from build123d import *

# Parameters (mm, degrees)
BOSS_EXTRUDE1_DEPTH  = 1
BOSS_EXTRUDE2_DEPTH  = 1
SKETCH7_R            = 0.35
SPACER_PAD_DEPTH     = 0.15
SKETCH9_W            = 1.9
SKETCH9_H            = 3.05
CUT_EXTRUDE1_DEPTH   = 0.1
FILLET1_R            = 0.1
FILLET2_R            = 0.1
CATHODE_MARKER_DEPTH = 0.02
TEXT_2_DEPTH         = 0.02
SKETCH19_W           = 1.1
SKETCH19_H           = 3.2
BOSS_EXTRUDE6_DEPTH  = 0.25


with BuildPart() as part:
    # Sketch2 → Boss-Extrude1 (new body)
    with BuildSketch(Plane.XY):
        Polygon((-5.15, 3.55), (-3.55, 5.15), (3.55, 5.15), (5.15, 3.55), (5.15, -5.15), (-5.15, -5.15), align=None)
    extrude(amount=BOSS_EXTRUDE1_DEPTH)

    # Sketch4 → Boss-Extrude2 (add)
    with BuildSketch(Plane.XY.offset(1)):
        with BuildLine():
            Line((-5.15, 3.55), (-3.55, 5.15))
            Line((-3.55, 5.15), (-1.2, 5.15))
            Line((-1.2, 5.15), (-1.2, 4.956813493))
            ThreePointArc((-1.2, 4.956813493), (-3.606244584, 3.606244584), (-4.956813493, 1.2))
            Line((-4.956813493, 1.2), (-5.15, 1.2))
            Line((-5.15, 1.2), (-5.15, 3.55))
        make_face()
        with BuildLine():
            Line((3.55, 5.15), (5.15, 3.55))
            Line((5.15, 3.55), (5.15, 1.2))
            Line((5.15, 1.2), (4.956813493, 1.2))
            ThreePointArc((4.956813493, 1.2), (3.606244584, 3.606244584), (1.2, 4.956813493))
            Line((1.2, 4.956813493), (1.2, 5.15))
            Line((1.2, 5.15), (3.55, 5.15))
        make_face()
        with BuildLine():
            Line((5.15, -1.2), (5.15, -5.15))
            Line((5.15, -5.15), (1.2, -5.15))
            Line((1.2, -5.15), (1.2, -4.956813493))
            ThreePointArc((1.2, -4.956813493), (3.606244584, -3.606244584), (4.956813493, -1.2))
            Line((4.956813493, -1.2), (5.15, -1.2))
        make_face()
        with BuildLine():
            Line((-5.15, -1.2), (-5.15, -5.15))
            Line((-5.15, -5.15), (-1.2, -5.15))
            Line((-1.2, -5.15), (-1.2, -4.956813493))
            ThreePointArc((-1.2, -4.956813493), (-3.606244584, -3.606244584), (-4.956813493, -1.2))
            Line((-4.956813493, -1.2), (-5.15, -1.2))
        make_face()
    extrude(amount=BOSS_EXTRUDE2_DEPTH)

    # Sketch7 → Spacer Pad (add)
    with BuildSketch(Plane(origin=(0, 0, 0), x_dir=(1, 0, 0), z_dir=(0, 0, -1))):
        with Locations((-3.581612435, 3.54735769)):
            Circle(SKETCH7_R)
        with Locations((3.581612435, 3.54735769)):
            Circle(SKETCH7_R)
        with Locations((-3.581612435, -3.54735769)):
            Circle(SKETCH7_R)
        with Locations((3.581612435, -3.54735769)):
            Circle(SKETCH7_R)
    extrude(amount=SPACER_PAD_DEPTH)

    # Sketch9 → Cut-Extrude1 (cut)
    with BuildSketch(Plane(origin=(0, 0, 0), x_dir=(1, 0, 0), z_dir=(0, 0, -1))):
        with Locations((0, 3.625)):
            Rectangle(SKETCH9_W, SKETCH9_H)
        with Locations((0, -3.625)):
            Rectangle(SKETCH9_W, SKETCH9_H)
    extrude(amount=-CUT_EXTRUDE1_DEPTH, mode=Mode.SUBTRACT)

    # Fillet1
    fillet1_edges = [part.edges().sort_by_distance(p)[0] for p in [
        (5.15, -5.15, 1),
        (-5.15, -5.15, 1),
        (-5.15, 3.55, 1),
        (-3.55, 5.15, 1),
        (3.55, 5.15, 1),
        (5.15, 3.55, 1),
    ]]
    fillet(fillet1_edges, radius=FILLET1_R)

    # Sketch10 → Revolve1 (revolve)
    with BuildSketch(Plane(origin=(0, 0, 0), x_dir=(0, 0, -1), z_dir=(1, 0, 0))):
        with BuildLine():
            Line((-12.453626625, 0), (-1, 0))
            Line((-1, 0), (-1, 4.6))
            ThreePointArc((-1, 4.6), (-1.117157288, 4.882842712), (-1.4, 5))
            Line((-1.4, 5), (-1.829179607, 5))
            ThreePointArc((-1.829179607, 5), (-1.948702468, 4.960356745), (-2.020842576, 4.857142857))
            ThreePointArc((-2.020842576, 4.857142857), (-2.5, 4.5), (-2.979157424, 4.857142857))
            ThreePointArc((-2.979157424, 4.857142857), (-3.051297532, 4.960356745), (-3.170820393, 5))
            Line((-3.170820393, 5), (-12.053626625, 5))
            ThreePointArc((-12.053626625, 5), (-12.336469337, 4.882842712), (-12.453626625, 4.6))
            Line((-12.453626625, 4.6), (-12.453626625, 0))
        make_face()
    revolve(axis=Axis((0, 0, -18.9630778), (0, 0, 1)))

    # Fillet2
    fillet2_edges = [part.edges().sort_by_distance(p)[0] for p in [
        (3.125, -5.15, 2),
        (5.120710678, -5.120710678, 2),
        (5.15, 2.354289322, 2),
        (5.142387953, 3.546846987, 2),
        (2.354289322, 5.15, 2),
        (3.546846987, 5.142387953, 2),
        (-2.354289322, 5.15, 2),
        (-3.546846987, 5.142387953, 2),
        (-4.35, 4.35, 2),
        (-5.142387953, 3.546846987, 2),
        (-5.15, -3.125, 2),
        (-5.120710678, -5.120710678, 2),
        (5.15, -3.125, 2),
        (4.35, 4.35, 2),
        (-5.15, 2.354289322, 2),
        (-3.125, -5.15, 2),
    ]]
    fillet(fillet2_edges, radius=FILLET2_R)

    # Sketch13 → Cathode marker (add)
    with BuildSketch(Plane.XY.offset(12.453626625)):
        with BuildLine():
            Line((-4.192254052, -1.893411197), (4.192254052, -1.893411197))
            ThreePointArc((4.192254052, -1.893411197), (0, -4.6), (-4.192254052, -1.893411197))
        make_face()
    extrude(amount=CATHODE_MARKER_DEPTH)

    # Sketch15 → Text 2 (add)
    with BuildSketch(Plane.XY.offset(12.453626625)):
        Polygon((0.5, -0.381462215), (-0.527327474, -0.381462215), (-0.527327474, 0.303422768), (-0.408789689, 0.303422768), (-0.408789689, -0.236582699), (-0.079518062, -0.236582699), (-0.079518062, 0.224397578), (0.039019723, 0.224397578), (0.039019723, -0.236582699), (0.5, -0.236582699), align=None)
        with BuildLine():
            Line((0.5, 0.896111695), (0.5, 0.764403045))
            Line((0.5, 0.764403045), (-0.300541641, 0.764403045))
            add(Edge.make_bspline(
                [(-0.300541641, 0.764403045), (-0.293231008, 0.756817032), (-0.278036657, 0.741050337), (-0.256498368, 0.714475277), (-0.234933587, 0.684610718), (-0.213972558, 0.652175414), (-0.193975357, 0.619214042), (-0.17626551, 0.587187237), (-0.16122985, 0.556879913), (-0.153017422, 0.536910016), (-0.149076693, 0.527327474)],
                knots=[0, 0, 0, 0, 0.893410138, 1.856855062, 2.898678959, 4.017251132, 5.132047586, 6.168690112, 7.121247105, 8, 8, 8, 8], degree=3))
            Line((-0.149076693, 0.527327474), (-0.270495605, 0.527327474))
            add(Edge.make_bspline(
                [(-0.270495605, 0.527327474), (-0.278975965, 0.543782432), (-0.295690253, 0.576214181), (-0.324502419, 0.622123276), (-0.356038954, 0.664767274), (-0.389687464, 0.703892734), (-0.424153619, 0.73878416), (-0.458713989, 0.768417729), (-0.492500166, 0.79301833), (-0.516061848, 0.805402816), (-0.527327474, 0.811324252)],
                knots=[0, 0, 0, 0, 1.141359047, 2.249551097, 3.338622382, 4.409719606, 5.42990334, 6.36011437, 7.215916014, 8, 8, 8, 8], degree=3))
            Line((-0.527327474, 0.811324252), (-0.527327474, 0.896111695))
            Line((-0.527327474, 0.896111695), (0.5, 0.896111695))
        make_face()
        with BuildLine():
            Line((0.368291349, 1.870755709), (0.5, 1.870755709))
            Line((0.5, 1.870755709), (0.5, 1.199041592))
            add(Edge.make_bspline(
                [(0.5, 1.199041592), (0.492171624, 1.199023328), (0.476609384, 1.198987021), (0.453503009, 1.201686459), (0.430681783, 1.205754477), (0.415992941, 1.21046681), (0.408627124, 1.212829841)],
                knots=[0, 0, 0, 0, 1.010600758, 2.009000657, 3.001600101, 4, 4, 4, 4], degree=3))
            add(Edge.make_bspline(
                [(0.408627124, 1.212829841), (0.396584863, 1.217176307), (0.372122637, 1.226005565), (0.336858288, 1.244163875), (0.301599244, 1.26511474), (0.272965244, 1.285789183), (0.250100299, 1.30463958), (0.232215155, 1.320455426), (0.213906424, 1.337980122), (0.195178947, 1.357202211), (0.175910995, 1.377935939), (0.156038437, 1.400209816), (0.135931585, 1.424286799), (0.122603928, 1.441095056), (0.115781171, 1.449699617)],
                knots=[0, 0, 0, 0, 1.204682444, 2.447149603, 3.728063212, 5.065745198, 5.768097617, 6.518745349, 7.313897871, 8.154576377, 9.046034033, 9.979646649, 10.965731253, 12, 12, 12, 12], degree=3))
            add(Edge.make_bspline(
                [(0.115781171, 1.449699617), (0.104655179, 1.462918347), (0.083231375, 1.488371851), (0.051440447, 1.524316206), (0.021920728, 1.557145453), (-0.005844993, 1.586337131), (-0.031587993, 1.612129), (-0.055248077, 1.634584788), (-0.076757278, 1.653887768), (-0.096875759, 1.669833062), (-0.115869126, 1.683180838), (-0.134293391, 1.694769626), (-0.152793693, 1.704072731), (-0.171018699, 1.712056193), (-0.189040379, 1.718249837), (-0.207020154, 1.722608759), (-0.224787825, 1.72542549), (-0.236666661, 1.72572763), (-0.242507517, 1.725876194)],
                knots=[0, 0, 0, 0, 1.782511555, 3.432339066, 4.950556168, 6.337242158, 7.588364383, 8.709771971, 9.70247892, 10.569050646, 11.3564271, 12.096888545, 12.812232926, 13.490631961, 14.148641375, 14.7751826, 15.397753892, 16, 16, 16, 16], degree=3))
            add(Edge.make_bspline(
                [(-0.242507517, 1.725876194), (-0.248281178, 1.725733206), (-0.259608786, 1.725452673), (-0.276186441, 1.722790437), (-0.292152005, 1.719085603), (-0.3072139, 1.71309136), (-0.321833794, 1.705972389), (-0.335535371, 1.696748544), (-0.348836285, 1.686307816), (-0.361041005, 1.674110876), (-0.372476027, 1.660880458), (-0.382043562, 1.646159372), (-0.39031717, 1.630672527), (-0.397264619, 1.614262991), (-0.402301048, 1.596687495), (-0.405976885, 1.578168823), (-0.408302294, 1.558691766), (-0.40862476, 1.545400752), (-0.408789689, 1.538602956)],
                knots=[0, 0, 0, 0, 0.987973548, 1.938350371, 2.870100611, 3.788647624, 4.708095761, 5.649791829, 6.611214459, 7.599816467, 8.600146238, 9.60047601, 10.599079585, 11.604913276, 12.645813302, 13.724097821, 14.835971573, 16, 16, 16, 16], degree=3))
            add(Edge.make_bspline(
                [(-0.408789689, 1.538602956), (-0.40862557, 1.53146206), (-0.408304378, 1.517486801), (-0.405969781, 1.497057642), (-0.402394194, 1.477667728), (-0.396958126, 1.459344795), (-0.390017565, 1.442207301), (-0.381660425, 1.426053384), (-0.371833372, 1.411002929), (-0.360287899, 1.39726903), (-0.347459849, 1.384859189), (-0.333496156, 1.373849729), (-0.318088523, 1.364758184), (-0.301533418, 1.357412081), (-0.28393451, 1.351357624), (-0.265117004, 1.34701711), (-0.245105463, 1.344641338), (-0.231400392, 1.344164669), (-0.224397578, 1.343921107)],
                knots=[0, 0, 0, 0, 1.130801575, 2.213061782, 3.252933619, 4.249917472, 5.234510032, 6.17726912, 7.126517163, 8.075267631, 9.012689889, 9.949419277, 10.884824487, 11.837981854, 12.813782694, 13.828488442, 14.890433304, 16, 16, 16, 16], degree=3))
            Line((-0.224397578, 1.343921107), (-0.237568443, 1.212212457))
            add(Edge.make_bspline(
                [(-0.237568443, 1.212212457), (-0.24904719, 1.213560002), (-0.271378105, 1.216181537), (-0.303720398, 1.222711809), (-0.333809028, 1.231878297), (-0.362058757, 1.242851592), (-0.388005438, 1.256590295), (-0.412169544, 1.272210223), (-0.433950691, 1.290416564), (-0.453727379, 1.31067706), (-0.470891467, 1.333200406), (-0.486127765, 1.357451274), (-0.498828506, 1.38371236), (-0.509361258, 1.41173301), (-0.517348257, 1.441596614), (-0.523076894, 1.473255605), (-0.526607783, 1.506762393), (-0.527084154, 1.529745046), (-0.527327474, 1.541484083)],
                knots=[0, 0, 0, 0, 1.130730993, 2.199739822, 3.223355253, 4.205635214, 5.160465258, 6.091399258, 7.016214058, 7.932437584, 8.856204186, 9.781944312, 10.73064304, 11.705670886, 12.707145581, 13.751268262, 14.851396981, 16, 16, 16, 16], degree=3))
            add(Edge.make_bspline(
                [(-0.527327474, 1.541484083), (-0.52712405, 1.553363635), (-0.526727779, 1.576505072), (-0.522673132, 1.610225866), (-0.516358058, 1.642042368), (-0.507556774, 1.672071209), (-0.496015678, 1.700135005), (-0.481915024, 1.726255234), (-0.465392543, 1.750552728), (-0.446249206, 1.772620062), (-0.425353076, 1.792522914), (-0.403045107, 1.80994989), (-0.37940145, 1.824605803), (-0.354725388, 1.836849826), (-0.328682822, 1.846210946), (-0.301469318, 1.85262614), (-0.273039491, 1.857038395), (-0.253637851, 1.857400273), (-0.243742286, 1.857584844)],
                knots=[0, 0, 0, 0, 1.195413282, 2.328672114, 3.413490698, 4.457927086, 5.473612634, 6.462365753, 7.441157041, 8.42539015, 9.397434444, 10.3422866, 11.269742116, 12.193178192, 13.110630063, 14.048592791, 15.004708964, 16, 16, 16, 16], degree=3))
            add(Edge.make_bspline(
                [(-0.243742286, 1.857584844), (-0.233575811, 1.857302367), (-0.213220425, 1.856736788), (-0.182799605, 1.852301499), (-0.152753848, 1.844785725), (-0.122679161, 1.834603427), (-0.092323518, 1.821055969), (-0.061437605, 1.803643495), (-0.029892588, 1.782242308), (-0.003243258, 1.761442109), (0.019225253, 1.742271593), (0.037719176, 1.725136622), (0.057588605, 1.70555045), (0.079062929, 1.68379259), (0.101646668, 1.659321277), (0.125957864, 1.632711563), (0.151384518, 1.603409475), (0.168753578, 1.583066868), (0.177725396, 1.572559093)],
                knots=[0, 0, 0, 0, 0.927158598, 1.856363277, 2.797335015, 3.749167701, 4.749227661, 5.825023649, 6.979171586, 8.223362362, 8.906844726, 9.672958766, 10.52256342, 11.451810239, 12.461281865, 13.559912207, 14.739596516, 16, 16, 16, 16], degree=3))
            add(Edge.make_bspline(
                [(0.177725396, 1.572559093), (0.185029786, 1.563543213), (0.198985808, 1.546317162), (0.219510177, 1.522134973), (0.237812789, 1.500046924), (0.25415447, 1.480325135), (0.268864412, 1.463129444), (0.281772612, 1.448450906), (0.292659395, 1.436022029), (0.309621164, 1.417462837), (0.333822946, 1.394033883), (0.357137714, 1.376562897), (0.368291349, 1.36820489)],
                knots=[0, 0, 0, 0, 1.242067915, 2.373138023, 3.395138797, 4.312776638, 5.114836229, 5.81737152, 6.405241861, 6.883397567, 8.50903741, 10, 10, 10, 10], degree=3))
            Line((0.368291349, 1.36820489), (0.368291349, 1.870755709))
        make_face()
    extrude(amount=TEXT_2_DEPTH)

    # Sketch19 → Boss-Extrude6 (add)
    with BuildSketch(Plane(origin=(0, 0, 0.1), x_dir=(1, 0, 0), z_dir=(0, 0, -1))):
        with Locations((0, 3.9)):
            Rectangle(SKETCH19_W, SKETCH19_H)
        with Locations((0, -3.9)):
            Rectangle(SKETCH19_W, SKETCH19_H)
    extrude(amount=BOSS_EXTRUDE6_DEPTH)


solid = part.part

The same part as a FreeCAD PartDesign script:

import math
import FreeCAD as App
import Part
import Sketcher
from FreeCAD import Vector


def edges_at(feature, points):
    """Names of the edges that pass closest to the given points."""
    edges = feature.Shape.Edges
    near = lambda p: min(range(len(edges)), key=lambda i: edges[i].distToShape(Part.Vertex(*p))[0])
    return sorted({f"Edge{near(p) + 1}" for p in points})


def add_polygon(sketch, points):
    """Adds a closed chain of lines whose ends are joined by coincident constraints."""
    first, n = sketch.GeometryCount, len(points)
    for a, b in zip(points, points[1:] + points[:1]):
        sketch.addGeometry(Part.LineSegment(App.Vector(*a, 0), App.Vector(*b, 0)), False)
    for i in range(n):
        sketch.addConstraint(Sketcher.Constraint("Coincident", first + i, 2, first + (i + 1) % n, 1))

doc = App.newDocument("Part")
body = doc.addObject("PartDesign::Body", "Body")

# Sketch on XY plane
sketch1 = body.newObject("Sketcher::SketchObject", "Sketch")
sketch1.AttachmentSupport = (doc.getObject("XY_Plane"), [""])
sketch1.MapMode = "FlatFace"
add_polygon(sketch1, [(-3.5, 5.2), (-5.2, 3.5), (-5.2, -5.2), (5.2, -5.2), (5.2, 3.5), (3.5, 5.2)])  # lines 0-5
sketch1.addConstraint(Sketcher.Constraint("Vertical", 1))
sketch1.addConstraint(Sketcher.Constraint("Horizontal", 2))
sketch1.addConstraint(Sketcher.Constraint("Vertical", 3))
sketch1.addConstraint(Sketcher.Constraint("Horizontal", 5))
sketch1.addConstraint(Sketcher.Constraint("Symmetric", 0, 2, 3, 2, -2))
sketch1.addConstraint(Sketcher.Constraint("Perpendicular", 0, 4))
sketch1.addConstraint(Sketcher.Constraint("Equal", 0, 4))
sketch1.addConstraint(Sketcher.Constraint("DistanceX", 2, 1, 2, 2, 10.3))
sketch1.addConstraint(Sketcher.Constraint("DistanceX", 5, 2, 5, 1, 7.1))
sketch1.addConstraint(Sketcher.Constraint("DistanceY", 1, 2, 1, 1, 8.7))
sketch1.addConstraint(Sketcher.Constraint("DistanceY", -1, 1, 0, 2, 3.55))
pad1 = body.newObject("PartDesign::Pad", "Pad")
pad1.Profile = sketch1
pad1.Length = 1

# Sketch on XY plane
sketch2 = body.newObject("Sketcher::SketchObject", "Sketch001")
sketch2.AttachmentSupport = (doc.getObject("XY_Plane"), [""])
sketch2.MapMode = "FlatFace"
sketch2.AttachmentOffset = App.Placement(Vector(0, 0, 1), App.Rotation())
sketch2.addGeometry(Part.LineSegment(Vector(-3.55, 5.15, 0), Vector(-5.15, 3.55, 0)), False)
sketch2.addGeometry(Part.LineSegment(Vector(-5.15, 3.55, 0), Vector(-5.15, 1.2, 0)), False)
sketch2.addGeometry(Part.LineSegment(Vector(-5.15, 1.2, 0), Vector(-4.96, 1.2, 0)), False)
sketch2.addGeometry(Part.ArcOfCircle(Part.Circle(Vector(0, 0, 0), Vector(0, 0, 1), 5.1), math.radians(104), math.radians(166)), False)
sketch2.addGeometry(Part.LineSegment(Vector(-1.2, 4.96, 0), Vector(-1.2, 5.15, 0)), False)
sketch2.addGeometry(Part.LineSegment(Vector(-1.2, 5.15, 0), Vector(-3.55, 5.15, 0)), False)
sketch2.addGeometry(Part.LineSegment(Vector(5.15, 3.55, 0), Vector(3.55, 5.15, 0)), False)
sketch2.addGeometry(Part.LineSegment(Vector(3.55, 5.15, 0), Vector(1.2, 5.15, 0)), False)
sketch2.addGeometry(Part.LineSegment(Vector(1.2, 5.15, 0), Vector(1.2, 4.96, 0)), False)
sketch2.addGeometry(Part.ArcOfCircle(Part.Circle(Vector(0, 0, 0), Vector(0, 0, 1), 5.1), math.radians(14), math.radians(76)), False)
sketch2.addGeometry(Part.LineSegment(Vector(4.96, 1.2, 0), Vector(5.15, 1.2, 0)), False)
sketch2.addGeometry(Part.LineSegment(Vector(5.15, 1.2, 0), Vector(5.15, 3.55, 0)), False)
sketch2.addGeometry(Part.LineSegment(Vector(5.15, -5.15, 0), Vector(5.15, -1.2, 0)), False)
sketch2.addGeometry(Part.LineSegment(Vector(5.15, -1.2, 0), Vector(4.96, -1.2, 0)), False)
sketch2.addGeometry(Part.ArcOfCircle(Part.Circle(Vector(0, 0, 0), Vector(0, 0, 1), 5.1), math.radians(-76), math.radians(-14)), False)
sketch2.addGeometry(Part.LineSegment(Vector(1.2, -4.96, 0), Vector(1.2, -5.15, 0)), False)
sketch2.addGeometry(Part.LineSegment(Vector(1.2, -5.15, 0), Vector(5.15, -5.15, 0)), False)
sketch2.addGeometry(Part.LineSegment(Vector(-5.15, -1.2, 0), Vector(-5.15, -5.15, 0)), False)
sketch2.addGeometry(Part.LineSegment(Vector(-5.15, -5.15, 0), Vector(-1.2, -5.15, 0)), False)
sketch2.addGeometry(Part.LineSegment(Vector(-1.2, -5.15, 0), Vector(-1.2, -4.96, 0)), False)
sketch2.addGeometry(Part.ArcOfCircle(Part.Circle(Vector(0, 0, 0), Vector(0, 0, 1), 5.1), math.radians(-166), math.radians(-104)), False)
sketch2.addGeometry(Part.LineSegment(Vector(-4.96, -1.2, 0), Vector(-5.15, -1.2, 0)), False)
sketch2.addConstraint(Sketcher.Constraint("Coincident", 0, 2, 1, 1))
sketch2.addConstraint(Sketcher.Constraint("Coincident", 1, 2, 2, 1))
sketch2.addConstraint(Sketcher.Constraint("Coincident", 2, 2, 3, 2))
sketch2.addConstraint(Sketcher.Constraint("Coincident", 3, 1, 4, 1))
sketch2.addConstraint(Sketcher.Constraint("Coincident", 4, 2, 5, 1))
sketch2.addConstraint(Sketcher.Constraint("Coincident", 5, 2, 0, 1))
sketch2.addConstraint(Sketcher.Constraint("Coincident", 6, 2, 7, 1))
sketch2.addConstraint(Sketcher.Constraint("Coincident", 7, 2, 8, 1))
sketch2.addConstraint(Sketcher.Constraint("Coincident", 8, 2, 9, 2))
sketch2.addConstraint(Sketcher.Constraint("Coincident", 9, 1, 10, 1))
sketch2.addConstraint(Sketcher.Constraint("Coincident", 10, 2, 11, 1))
sketch2.addConstraint(Sketcher.Constraint("Coincident", 11, 2, 6, 1))
sketch2.addConstraint(Sketcher.Constraint("Coincident", 12, 2, 13, 1))
sketch2.addConstraint(Sketcher.Constraint("Coincident", 13, 2, 14, 2))
sketch2.addConstraint(Sketcher.Constraint("Coincident", 14, 1, 15, 1))
sketch2.addConstraint(Sketcher.Constraint("Coincident", 15, 2, 16, 1))
sketch2.addConstraint(Sketcher.Constraint("Coincident", 16, 2, 12, 1))
sketch2.addConstraint(Sketcher.Constraint("Coincident", 17, 2, 18, 1))
sketch2.addConstraint(Sketcher.Constraint("Coincident", 18, 2, 19, 1))
sketch2.addConstraint(Sketcher.Constraint("Coincident", 19, 2, 20, 2))
sketch2.addConstraint(Sketcher.Constraint("Coincident", 20, 1, 21, 1))
sketch2.addConstraint(Sketcher.Constraint("Coincident", 21, 2, 17, 1))
sketch2.addConstraint(Sketcher.Constraint("Vertical", 1))
sketch2.addConstraint(Sketcher.Constraint("Horizontal", 2))
sketch2.addConstraint(Sketcher.Constraint("Vertical", 4))
sketch2.addConstraint(Sketcher.Constraint("Horizontal", 5))
sketch2.addConstraint(Sketcher.Constraint("Horizontal", 7))
sketch2.addConstraint(Sketcher.Constraint("Vertical", 8))
sketch2.addConstraint(Sketcher.Constraint("Horizontal", 10))
sketch2.addConstraint(Sketcher.Constraint("Vertical", 11))
sketch2.addConstraint(Sketcher.Constraint("Vertical", 12))
sketch2.addConstraint(Sketcher.Constraint("Horizontal", 13))
sketch2.addConstraint(Sketcher.Constraint("Vertical", 15))
sketch2.addConstraint(Sketcher.Constraint("Horizontal", 16))
sketch2.addConstraint(Sketcher.Constraint("Vertical", 17))
sketch2.addConstraint(Sketcher.Constraint("Horizontal", 18))
sketch2.addConstraint(Sketcher.Constraint("Vertical", 19))
sketch2.addConstraint(Sketcher.Constraint("Horizontal", 21))
sketch2.addConstraint(Sketcher.Constraint("Coincident", 3, 3, -1, 1))
sketch2.addConstraint(Sketcher.Constraint("Coincident", 9, 3, -1, 1))
sketch2.addConstraint(Sketcher.Constraint("Coincident", 14, 3, -1, 1))
sketch2.addConstraint(Sketcher.Constraint("Coincident", 20, 3, -1, 1))
sketch2.addConstraint(Sketcher.Constraint("Equal", 3, 9))
sketch2.addConstraint(Sketcher.Constraint("Equal", 9, 14))
sketch2.addConstraint(Sketcher.Constraint("Equal", 14, 20))
sketch2.addConstraint(Sketcher.Constraint("Symmetric", 1, 2, 12, 2, -1, 1))
sketch2.addConstraint(Sketcher.Constraint("Symmetric", 4, 2, 15, 2, -1, 1))
sketch2.addConstraint(Sketcher.Constraint("Symmetric", 7, 2, 18, 2, -1, 1))
sketch2.addConstraint(Sketcher.Constraint("Symmetric", 10, 2, 21, 2, -1, 1))
sketch2.addConstraint(Sketcher.Constraint("Symmetric", 5, 2, 6, 2, -2))
sketch2.addConstraint(Sketcher.Constraint("Symmetric", 1, 2, 10, 2, -2))
sketch2.addConstraint(Sketcher.Constraint("Perpendicular", 0, 6))
sketch2.addConstraint(Sketcher.Constraint("Horizontal", 3, 1, 8, 2))
sketch2.addConstraint(Sketcher.Constraint("Horizontal", 0, 2, 11, 2))
sketch2.addConstraint(Sketcher.Constraint("Equal", 7, 1))
sketch2.addConstraint(Sketcher.Constraint("Equal", 21, 4))
sketch2.addConstraint(Sketcher.Constraint("Radius", 3, 5.1))
sketch2.addConstraint(Sketcher.Constraint("DistanceX", 5, 2, 5, 1, 2.35))
sketch2.addConstraint(Sketcher.Constraint("DistanceX", 16, 1, 16, 2, 3.95))
sketch2.addConstraint(Sketcher.Constraint("DistanceY", -1, 1, 1, 2, 1.2))
pad2 = body.newObject("PartDesign::Pad", "Pad001")
pad2.Profile = sketch2
pad2.Length = 1

# Sketch on XY plane
sketch3 = body.newObject("Sketcher::SketchObject", "Sketch002")
sketch3.AttachmentSupport = (doc.getObject("XY_Plane"), [""])
sketch3.MapMode = "FlatFace"
sketch3.addGeometry(Part.Circle(Vector(-3.58, -3.55, 0), Vector(0, 0, 1), 0.35), False)
sketch3.addGeometry(Part.Circle(Vector(3.58, -3.55, 0), Vector(0, 0, 1), 0.35), False)
sketch3.addGeometry(Part.Circle(Vector(-3.58, 3.55, 0), Vector(0, 0, 1), 0.35), False)
sketch3.addGeometry(Part.Circle(Vector(3.58, 3.55, 0), Vector(0, 0, 1), 0.35), False)
sketch3.addConstraint(Sketcher.Constraint("Equal", 0, 1))
sketch3.addConstraint(Sketcher.Constraint("Equal", 1, 2))
sketch3.addConstraint(Sketcher.Constraint("Equal", 2, 3))
sketch3.addConstraint(Sketcher.Constraint("Symmetric", 1, 3, 2, 3, -1, 1))
sketch3.addConstraint(Sketcher.Constraint("Symmetric", 0, 3, 3, 3, -1, 1))
sketch3.addConstraint(Sketcher.Constraint("Symmetric", 0, 3, 1, 3, -2))
sketch3.addConstraint(Sketcher.Constraint("Diameter", 0, 0.7))
sketch3.addConstraint(Sketcher.Constraint("DistanceX", 0, 3, -1, 1, 3.581612))
sketch3.addConstraint(Sketcher.Constraint("DistanceY", 0, 3, -1, 1, 3.547358))
pad3 = body.newObject("PartDesign::Pad", "Pad002")
pad3.Profile = sketch3
pad3.Length = 0.15
pad3.Reversed = True

# Sketch on XY plane
sketch4 = body.newObject("Sketcher::SketchObject", "Sketch003")
sketch4.AttachmentSupport = (doc.getObject("XY_Plane"), [""])
sketch4.MapMode = "FlatFace"
add_polygon(sketch4, [(-0.9, -5.2), (-0.9, -2.1), (0.9, -2.1), (0.9, -5.2)])  # lines 0-3
add_polygon(sketch4, [(-0.9, 2.1), (-0.9, 5.2), (0.9, 5.2), (0.9, 2.1)])  # lines 4-7
sketch4.addConstraint(Sketcher.Constraint("Vertical", 0))
sketch4.addConstraint(Sketcher.Constraint("Horizontal", 1))
sketch4.addConstraint(Sketcher.Constraint("Vertical", 2))
sketch4.addConstraint(Sketcher.Constraint("Horizontal", 3))
sketch4.addConstraint(Sketcher.Constraint("Vertical", 4))
sketch4.addConstraint(Sketcher.Constraint("Horizontal", 5))
sketch4.addConstraint(Sketcher.Constraint("Vertical", 6))
sketch4.addConstraint(Sketcher.Constraint("Horizontal", 7))
sketch4.addConstraint(Sketcher.Constraint("Symmetric", 2, 2, 4, 2, -1, 1))
sketch4.addConstraint(Sketcher.Constraint("Symmetric", 0, 2, 6, 2, -1, 1))
sketch4.addConstraint(Sketcher.Constraint("Vertical", 3, 2, 4, 2))
sketch4.addConstraint(Sketcher.Constraint("DistanceX", 1, 1, 1, 2, 1.9))
sketch4.addConstraint(Sketcher.Constraint("DistanceY", 0, 1, 0, 2, 3.05))
sketch4.addConstraint(Sketcher.Constraint("DistanceY", 0, 2, -1, 1, 2.1))
pocket1 = body.newObject("PartDesign::Pocket", "Pocket")
pocket1.Profile = sketch4
pocket1.Length = 0.1
pocket1.Reversed = True
doc.recompute()

fillet = body.newObject("PartDesign::Fillet", "Fillet")
fillet.Base = (pocket1, edges_at(pocket1, [
    (5.15, -5.15, 1),
    (-5.15, -5.15, 1),
    (-5.15, 3.55, 1),
    (-3.55, 5.15, 1),
    (3.55, 5.15, 1),
    (5.15, 3.55, 1),
]))
fillet.Radius = 0.1

# Sketch on YZ plane
sketch5 = body.newObject("Sketcher::SketchObject", "Sketch004")
sketch5.AttachmentSupport = (doc.getObject("YZ_Plane"), [""])
sketch5.MapMode = "FlatFace"
sketch5.addGeometry(Part.LineSegment(Vector(0, 12.45, 0), Vector(0, 1, 0)), False)
sketch5.addGeometry(Part.LineSegment(Vector(0, 1, 0), Vector(4.6, 1, 0)), False)
sketch5.addGeometry(Part.ArcOfCircle(Part.Circle(Vector(4.6, 1.4, 0), Vector(0, 0, 1), 0.4), math.radians(-90), math.radians(0)), False)
sketch5.addGeometry(Part.LineSegment(Vector(5, 1.4, 0), Vector(5, 1.83, 0)), False)
sketch5.addGeometry(Part.ArcOfCircle(Part.Circle(Vector(4.8, 1.83, 0), Vector(0, 0, 1), 0.2), math.radians(0), math.radians(73)), False)
sketch5.addGeometry(Part.ArcOfCircle(Part.Circle(Vector(5, 2.5, 0), Vector(0, 0, 1), 0.5), math.radians(107), math.radians(253)), False)
sketch5.addGeometry(Part.ArcOfCircle(Part.Circle(Vector(4.8, 3.17, 0), Vector(0, 0, 1), 0.2), math.radians(-73), math.radians(0)), False)
sketch5.addGeometry(Part.LineSegment(Vector(5, 3.17, 0), Vector(5, 12.05, 0)), False)
sketch5.addGeometry(Part.ArcOfCircle(Part.Circle(Vector(4.6, 12.05, 0), Vector(0, 0, 1), 0.4), math.radians(0), math.radians(90)), False)
sketch5.addGeometry(Part.LineSegment(Vector(4.6, 12.45, 0), Vector(0, 12.45, 0)), False)
sketch5.addConstraint(Sketcher.Constraint("Coincident", 0, 2, 1, 1))
sketch5.addConstraint(Sketcher.Constraint("Tangent", 1, 2, 2, 1))
sketch5.addConstraint(Sketcher.Constraint("Tangent", 2, 2, 3, 1))
sketch5.addConstraint(Sketcher.Constraint("Tangent", 3, 2, 4, 1))
sketch5.addConstraint(Sketcher.Constraint("Tangent", 4, 2, 5, 2))
sketch5.addConstraint(Sketcher.Constraint("Tangent", 5, 1, 6, 1))
sketch5.addConstraint(Sketcher.Constraint("Tangent", 6, 2, 7, 1))
sketch5.addConstraint(Sketcher.Constraint("Tangent", 7, 2, 8, 1))
sketch5.addConstraint(Sketcher.Constraint("Tangent", 8, 2, 9, 1))
sketch5.addConstraint(Sketcher.Constraint("Coincident", 9, 2, 0, 1))
sketch5.addConstraint(Sketcher.Constraint("Vertical", 0))
sketch5.addConstraint(Sketcher.Constraint("Horizontal", 1))
sketch5.addConstraint(Sketcher.Constraint("Vertical", 3))
sketch5.addConstraint(Sketcher.Constraint("Vertical", 7))
sketch5.addConstraint(Sketcher.Constraint("Horizontal", 9))
sketch5.addConstraint(Sketcher.Constraint("Equal", 4, 6))
sketch5.addConstraint(Sketcher.Constraint("Equal", 2, 8))
sketch5.addConstraint(Sketcher.Constraint("PointOnObject", 0, 2, -2))
sketch5.addConstraint(Sketcher.Constraint("Vertical", 4, 3, 6, 3))
sketch5.addConstraint(Sketcher.Constraint("Vertical", 5, 3, 2, 2))
sketch5.addConstraint(Sketcher.Constraint("Radius", 2, 0.4))
sketch5.addConstraint(Sketcher.Constraint("Radius", 4, 0.2))
sketch5.addConstraint(Sketcher.Constraint("Radius", 5, 0.5))
sketch5.addConstraint(Sketcher.Constraint("DistanceX", 1, 1, 1, 2, 4.6))
sketch5.addConstraint(Sketcher.Constraint("DistanceY", -1, 1, 0, 2, 1.0))
sketch5.addConstraint(Sketcher.Constraint("DistanceY", -1, 1, 5, 3, 2.5))
sketch5.addConstraint(Sketcher.Constraint("DistanceY", 0, 2, 0, 1, 11.453627))
revolution = body.newObject("PartDesign::Revolution", "Revolution")
revolution.Profile = sketch5
revolution.ReferenceAxis = (sketch5, ["V_Axis"])
revolution.Angle = 360
doc.recompute()

fillet2 = body.newObject("PartDesign::Fillet", "Fillet001")
fillet2.Base = (revolution, edges_at(revolution, [
    (3.125, -5.15, 2),
    (5.121, -5.121, 2),
    (5.15, 2.354, 2),
    (5.142, 3.547, 2),
    (2.354, 5.15, 2),
    (3.547, 5.142, 2),
    (-2.354, 5.15, 2),
    (-3.547, 5.142, 2),
    (-4.35, 4.35, 2),
    (-5.142, 3.547, 2),
    (-5.15, -3.125, 2),
    (-5.121, -5.121, 2),
    (5.15, -3.125, 2),
    (4.35, 4.35, 2),
    (-5.15, 2.354, 2),
    (-3.125, -5.15, 2),
]))
fillet2.Radius = 0.1

# Sketch on XY plane
sketch6 = body.newObject("Sketcher::SketchObject", "Sketch005")
sketch6.AttachmentSupport = (doc.getObject("XY_Plane"), [""])
sketch6.MapMode = "FlatFace"
sketch6.AttachmentOffset = App.Placement(Vector(0, 0, 12.453627), App.Rotation())
sketch6.addGeometry(Part.LineSegment(Vector(4.2, -1.9, 0), Vector(-4.2, -1.9, 0)), False)
sketch6.addGeometry(Part.ArcOfCircle(Part.Circle(Vector(0, 0, 0), Vector(0, 0, 1), 4.6), math.radians(-156), math.radians(-24)), False)
sketch6.addConstraint(Sketcher.Constraint("Coincident", 0, 1, 1, 2))
sketch6.addConstraint(Sketcher.Constraint("Coincident", 1, 1, 0, 2))
sketch6.addConstraint(Sketcher.Constraint("Horizontal", 0))
sketch6.addConstraint(Sketcher.Constraint("Coincident", 1, 3, -1, 1))
sketch6.addConstraint(Sketcher.Constraint("Radius", 1, 4.6))
sketch6.addConstraint(Sketcher.Constraint("DistanceX", 0, 2, 0, 1, 8.384508))
pad4 = body.newObject("PartDesign::Pad", "Pad003")
pad4.Profile = sketch6
pad4.Length = 0.02

# Sketch on XY plane
sketch7 = body.newObject("Sketcher::SketchObject", "Sketch006")
sketch7.AttachmentSupport = (doc.getObject("XY_Plane"), [""])
sketch7.MapMode = "FlatFace"
sketch7.AttachmentOffset = App.Placement(Vector(0, 0, 12.453627), App.Rotation())
add_polygon(sketch7, [(-0.527327, -0.381462), (0.5, -0.381462), (0.5, -0.236583), (0.03902, -0.236583), (0.03902, 0.224398), (-0.079518, 0.224398), (-0.079518, -0.236583), (-0.40879, -0.236583), (-0.40879, 0.303423), (-0.527327, 0.303423)])  # lines 0-9
sketch7.addGeometry(Part.LineSegment(Vector(0.5, 0.764403, 0), Vector(0.5, 0.896112, 0)), False)  # 10
sketch7.addGeometry(Part.LineSegment(Vector(0.5, 0.896112, 0), Vector(-0.527327, 0.896112, 0)), False)  # 11
sketch7.addGeometry(Part.LineSegment(Vector(-0.527327, 0.896112, 0), Vector(-0.527327, 0.811324, 0)), False)  # 12
sketch7.addGeometry(Part.BSplineCurve([Vector(-0.270496, 0.527327, 0), Vector(-0.278976, 0.543782, 0), Vector(-0.29569, 0.576214, 0), Vector(-0.324502, 0.622123, 0), Vector(-0.356039, 0.664767, 0), Vector(-0.389687, 0.703893, 0), Vector(-0.424154, 0.738784, 0), Vector(-0.458714, 0.768418, 0), Vector(-0.4925, 0.793018, 0), Vector(-0.516062, 0.805403, 0), Vector(-0.527327, 0.811324, 0)], [4, 1, 1, 1, 1, 1, 1, 1, 4], [0, 1.141359047, 2.249551097, 3.338622382, 4.409719606, 5.42990334, 6.36011437, 7.215916014, 8], False, 3, [1, 1, 1, 1, 1, 1, 1, 1, 1, 1, 1], False), False)  # 13
sketch7.addGeometry(Part.LineSegment(Vector(-0.270496, 0.527327, 0), Vector(-0.149077, 0.527327, 0)), False)  # 14
sketch7.addGeometry(Part.BSplineCurve([Vector(-0.300542, 0.764403, 0), Vector(-0.293231, 0.756817, 0), Vector(-0.278037, 0.74105, 0), Vector(-0.256498, 0.714475, 0), Vector(-0.234934, 0.684611, 0), Vector(-0.213973, 0.652175, 0), Vector(-0.193975, 0.619214, 0), Vector(-0.176266, 0.587187, 0), Vector(-0.16123, 0.55688, 0), Vector(-0.153017, 0.53691, 0), Vector(-0.149077, 0.527327, 0)], [4, 1, 1, 1, 1, 1, 1, 1, 4], [0, 0.893410138, 1.856855062, 2.898678959, 4.017251132, 5.132047586, 6.168690112, 7.121247105, 8], False, 3, [1, 1, 1, 1, 1, 1, 1, 1, 1, 1, 1], False), False)  # 15
sketch7.addGeometry(Part.LineSegment(Vector(-0.300542, 0.764403, 0), Vector(0.5, 0.764403, 0)), False)  # 16
sketch7.addGeometry(Part.LineSegment(Vector(0.5, 1.870756, 0), Vector(0.368291, 1.870756, 0)), False)  # 17
sketch7.addGeometry(Part.LineSegment(Vector(0.368291, 1.870756, 0), Vector(0.368291, 1.368205, 0)), False)  # 18
sketch7.addGeometry(Part.BSplineCurve([Vector(0.177725, 1.572559, 0), Vector(0.18503, 1.563543, 0), Vector(0.198986, 1.546317, 0), Vector(0.21951, 1.522135, 0), Vector(0.237813, 1.500047, 0), Vector(0.254154, 1.480325, 0), Vector(0.268864, 1.463129, 0), Vector(0.281773, 1.448451, 0), Vector(0.292659, 1.436022, 0), Vector(0.309621, 1.417463, 0), Vector(0.333823, 1.394034, 0), Vector(0.357138, 1.376563, 0), Vector(0.368291, 1.368205, 0)], [4, 1, 1, 1, 1, 1, 1, 1, 1, 1, 4], [0, 1.242067915, 2.373138023, 3.395138797, 4.312776638, 5.114836229, 5.81737152, 6.405241861, 6.883397567, 8.50903741, 10], False, 3, [1, 1, 1, 1, 1, 1, 1, 1, 1, 1, 1, 1, 1], False), False)  # 19
sketch7.addGeometry(Part.BSplineCurve([Vector(-0.243742, 1.857585, 0), Vector(-0.233576, 1.857302, 0), Vector(-0.21322, 1.856737, 0), Vector(-0.1828, 1.852301, 0), Vector(-0.152754, 1.844786, 0), Vector(-0.122679, 1.834603, 0), Vector(-0.092324, 1.821056, 0), Vector(-0.061438, 1.803643, 0), Vector(-0.029893, 1.782242, 0), Vector(-0.003243, 1.761442, 0), Vector(0.019225, 1.742272, 0), Vector(0.037719, 1.725137, 0), Vector(0.057589, 1.70555, 0), Vector(0.079063, 1.683793, 0), Vector(0.101647, 1.659321, 0), Vector(0.125958, 1.632712, 0), Vector(0.151385, 1.603409, 0), Vector(0.168754, 1.583067, 0), Vector(0.177725, 1.572559, 0)], [4, 1, 1, 1, 1, 1, 1, 1, 1, 1, 1, 1, 1, 1, 1, 1, 4], [0, 0.927158598, 1.856363277, 2.797335015, 3.749167701, 4.749227661, 5.825023649, 6.979171586, 8.223362362, 8.906844726, 9.672958766, 10.52256342, 11.451810239, 12.461281865, 13.559912207, 14.739596516, 16], False, 3, [1, 1, 1, 1, 1, 1, 1, 1, 1, 1, 1, 1, 1, 1, 1, 1, 1, 1, 1], False), False)  # 20
sketch7.addGeometry(Part.BSplineCurve([Vector(-0.527327, 1.541484, 0), Vector(-0.527124, 1.553364, 0), Vector(-0.526728, 1.576505, 0), Vector(-0.522673, 1.610226, 0), Vector(-0.516358, 1.642042, 0), Vector(-0.507557, 1.672071, 0), Vector(-0.496016, 1.700135, 0), Vector(-0.481915, 1.726255, 0), Vector(-0.465393, 1.750553, 0), Vector(-0.446249, 1.77262, 0), Vector(-0.425353, 1.792523, 0), Vector(-0.403045, 1.80995, 0), Vector(-0.379401, 1.824606, 0), Vector(-0.354725, 1.83685, 0), Vector(-0.328683, 1.846211, 0), Vector(-0.301469, 1.852626, 0), Vector(-0.273039, 1.857038, 0), Vector(-0.253638, 1.8574, 0), Vector(-0.243742, 1.857585, 0)], [4, 1, 1, 1, 1, 1, 1, 1, 1, 1, 1, 1, 1, 1, 1, 1, 4], [0, 1.195413282, 2.328672114, 3.413490698, 4.457927086, 5.473612634, 6.462365753, 7.441157041, 8.42539015, 9.397434444, 10.3422866, 11.269742116, 12.193178192, 13.110630063, 14.048592791, 15.004708964, 16], False, 3, [1, 1, 1, 1, 1, 1, 1, 1, 1, 1, 1, 1, 1, 1, 1, 1, 1, 1, 1], False), False)  # 21
sketch7.addGeometry(Part.BSplineCurve([Vector(-0.237568, 1.212212, 0), Vector(-0.249047, 1.21356, 0), Vector(-0.271378, 1.216182, 0), Vector(-0.30372, 1.222712, 0), Vector(-0.333809, 1.231878, 0), Vector(-0.362059, 1.242852, 0), Vector(-0.388005, 1.25659, 0), Vector(-0.41217, 1.27221, 0), Vector(-0.433951, 1.290417, 0), Vector(-0.453727, 1.310677, 0), Vector(-0.470891, 1.3332, 0), Vector(-0.486128, 1.357451, 0), Vector(-0.498829, 1.383712, 0), Vector(-0.509361, 1.411733, 0), Vector(-0.517348, 1.441597, 0), Vector(-0.523077, 1.473256, 0), Vector(-0.526608, 1.506762, 0), Vector(-0.527084, 1.529745, 0), Vector(-0.527327, 1.541484, 0)], [4, 1, 1, 1, 1, 1, 1, 1, 1, 1, 1, 1, 1, 1, 1, 1, 4], [0, 1.130730993, 2.199739822, 3.223355253, 4.205635214, 5.160465258, 6.091399258, 7.016214058, 7.932437584, 8.856204186, 9.781944312, 10.73064304, 11.705670886, 12.707145581, 13.751268262, 14.851396981, 16], False, 3, [1, 1, 1, 1, 1, 1, 1, 1, 1, 1, 1, 1, 1, 1, 1, 1, 1, 1, 1], False), False)  # 22
sketch7.addGeometry(Part.LineSegment(Vector(-0.237568, 1.212212, 0), Vector(-0.224398, 1.343921, 0)), False)  # 23
sketch7.addGeometry(Part.BSplineCurve([Vector(-0.40879, 1.538603, 0), Vector(-0.408626, 1.531462, 0), Vector(-0.408304, 1.517487, 0), Vector(-0.40597, 1.497058, 0), Vector(-0.402394, 1.477668, 0), Vector(-0.396958, 1.459345, 0), Vector(-0.390018, 1.442207, 0), Vector(-0.38166, 1.426053, 0), Vector(-0.371833, 1.411003, 0), Vector(-0.360288, 1.397269, 0), Vector(-0.34746, 1.384859, 0), Vector(-0.333496, 1.37385, 0), Vector(-0.318089, 1.364758, 0), Vector(-0.301533, 1.357412, 0), Vector(-0.283935, 1.351358, 0), Vector(-0.265117, 1.347017, 0), Vector(-0.245105, 1.344641, 0), Vector(-0.2314, 1.344165, 0), Vector(-0.224398, 1.343921, 0)], [4, 1, 1, 1, 1, 1, 1, 1, 1, 1, 1, 1, 1, 1, 1, 1, 4], [0, 1.130801575, 2.213061782, 3.252933619, 4.249917472, 5.234510032, 6.17726912, 7.126517163, 8.075267631, 9.012689889, 9.949419277, 10.884824487, 11.837981854, 12.813782694, 13.828488442, 14.890433304, 16], False, 3, [1, 1, 1, 1, 1, 1, 1, 1, 1, 1, 1, 1, 1, 1, 1, 1, 1, 1, 1], False), False)  # 24
sketch7.addGeometry(Part.BSplineCurve([Vector(-0.242508, 1.725876, 0), Vector(-0.248281, 1.725733, 0), Vector(-0.259609, 1.725453, 0), Vector(-0.276186, 1.72279, 0), Vector(-0.292152, 1.719086, 0), Vector(-0.307214, 1.713091, 0), Vector(-0.321834, 1.705972, 0), Vector(-0.335535, 1.696749, 0), Vector(-0.348836, 1.686308, 0), Vector(-0.361041, 1.674111, 0), Vector(-0.372476, 1.66088, 0), Vector(-0.382044, 1.646159, 0), Vector(-0.390317, 1.630673, 0), Vector(-0.397265, 1.614263, 0), Vector(-0.402301, 1.596687, 0), Vector(-0.405977, 1.578169, 0), Vector(-0.408302, 1.558692, 0), Vector(-0.408625, 1.545401, 0), Vector(-0.40879, 1.538603, 0)], [4, 1, 1, 1, 1, 1, 1, 1, 1, 1, 1, 1, 1, 1, 1, 1, 4], [0, 0.987973548, 1.938350371, 2.870100611, 3.788647624, 4.708095761, 5.649791829, 6.611214459, 7.599816467, 8.600146238, 9.60047601, 10.599079585, 11.604913276, 12.645813302, 13.724097821, 14.835971573, 16], False, 3, [1, 1, 1, 1, 1, 1, 1, 1, 1, 1, 1, 1, 1, 1, 1, 1, 1, 1, 1], False), False)  # 25
sketch7.addGeometry(Part.BSplineCurve([Vector(0.115781, 1.4497, 0), Vector(0.104655, 1.462918, 0), Vector(0.083231, 1.488372, 0), Vector(0.05144, 1.524316, 0), Vector(0.021921, 1.557145, 0), Vector(-0.005845, 1.586337, 0), Vector(-0.031588, 1.612129, 0), Vector(-0.055248, 1.634585, 0), Vector(-0.076757, 1.653888, 0), Vector(-0.096876, 1.669833, 0), Vector(-0.115869, 1.683181, 0), Vector(-0.134293, 1.69477, 0), Vector(-0.152794, 1.704073, 0), Vector(-0.171019, 1.712056, 0), Vector(-0.18904, 1.71825, 0), Vector(-0.20702, 1.722609, 0), Vector(-0.224788, 1.725425, 0), Vector(-0.236667, 1.725728, 0), Vector(-0.242508, 1.725876, 0)], [4, 1, 1, 1, 1, 1, 1, 1, 1, 1, 1, 1, 1, 1, 1, 1, 4], [0, 1.782511555, 3.432339066, 4.950556168, 6.337242158, 7.588364383, 8.709771971, 9.70247892, 10.569050646, 11.3564271, 12.096888545, 12.812232926, 13.490631961, 14.148641375, 14.7751826, 15.397753892, 16], False, 3, [1, 1, 1, 1, 1, 1, 1, 1, 1, 1, 1, 1, 1, 1, 1, 1, 1, 1, 1], False), False)  # 26
sketch7.addGeometry(Part.BSplineCurve([Vector(0.408627, 1.21283, 0), Vector(0.396585, 1.217176, 0), Vector(0.372123, 1.226006, 0), Vector(0.336858, 1.244164, 0), Vector(0.301599, 1.265115, 0), Vector(0.272965, 1.285789, 0), Vector(0.2501, 1.30464, 0), Vector(0.232215, 1.320455, 0), Vector(0.213906, 1.33798, 0), Vector(0.195179, 1.357202, 0), Vector(0.175911, 1.377936, 0), Vector(0.156038, 1.40021, 0), Vector(0.135932, 1.424287, 0), Vector(0.122604, 1.441095, 0), Vector(0.115781, 1.4497, 0)], [4, 1, 1, 1, 1, 1, 1, 1, 1, 1, 1, 1, 4], [0, 1.204682444, 2.447149603, 3.728063212, 5.065745198, 5.768097617, 6.518745349, 7.313897871, 8.154576377, 9.046034033, 9.979646649, 10.965731253, 12], False, 3, [1, 1, 1, 1, 1, 1, 1, 1, 1, 1, 1, 1, 1, 1, 1], False), False)  # 27
sketch7.addGeometry(Part.BSplineCurve([Vector(0.5, 1.199042, 0), Vector(0.492172, 1.199023, 0), Vector(0.476609, 1.198987, 0), Vector(0.453503, 1.201686, 0), Vector(0.430682, 1.205754, 0), Vector(0.415993, 1.210467, 0), Vector(0.408627, 1.21283, 0)], [4, 1, 1, 1, 4], [0, 1.010600758, 2.009000657, 3.001600101, 4], False, 3, [1, 1, 1, 1, 1, 1, 1], False), False)  # 28
sketch7.addGeometry(Part.LineSegment(Vector(0.5, 1.199042, 0), Vector(0.5, 1.870756, 0)), False)  # 29
sketch7.addConstraint(Sketcher.Constraint("Block", 13))
sketch7.addConstraint(Sketcher.Constraint("Block", 15))
sketch7.addConstraint(Sketcher.Constraint("Block", 19))
sketch7.addConstraint(Sketcher.Constraint("Block", 20))
sketch7.addConstraint(Sketcher.Constraint("Block", 21))
sketch7.addConstraint(Sketcher.Constraint("Block", 22))
sketch7.addConstraint(Sketcher.Constraint("Block", 24))
sketch7.addConstraint(Sketcher.Constraint("Block", 25))
sketch7.addConstraint(Sketcher.Constraint("Block", 26))
sketch7.addConstraint(Sketcher.Constraint("Block", 27))
sketch7.addConstraint(Sketcher.Constraint("Block", 28))
sketch7.addConstraint(Sketcher.Constraint("Coincident", 10, 2, 11, 1))
sketch7.addConstraint(Sketcher.Constraint("Coincident", 11, 2, 12, 1))
sketch7.addConstraint(Sketcher.Constraint("Coincident", 12, 2, 13, 2))
sketch7.addConstraint(Sketcher.Constraint("Coincident", 13, 1, 14, 1))
sketch7.addConstraint(Sketcher.Constraint("Coincident", 14, 2, 15, 2))
sketch7.addConstraint(Sketcher.Constraint("Coincident", 15, 1, 16, 1))
sketch7.addConstraint(Sketcher.Constraint("Coincident", 16, 2, 10, 1))
sketch7.addConstraint(Sketcher.Constraint("Coincident", 17, 2, 18, 1))
sketch7.addConstraint(Sketcher.Constraint("Coincident", 18, 2, 19, 2))
sketch7.addConstraint(Sketcher.Constraint("Coincident", 22, 1, 23, 1))
sketch7.addConstraint(Sketcher.Constraint("Coincident", 23, 2, 24, 2))
sketch7.addConstraint(Sketcher.Constraint("Coincident", 28, 1, 29, 1))
sketch7.addConstraint(Sketcher.Constraint("Coincident", 29, 2, 17, 1))
sketch7.addConstraint(Sketcher.Constraint("Horizontal", 0))
sketch7.addConstraint(Sketcher.Constraint("Vertical", 1))
sketch7.addConstraint(Sketcher.Constraint("Horizontal", 2))
sketch7.addConstraint(Sketcher.Constraint("Vertical", 3))
sketch7.addConstraint(Sketcher.Constraint("Horizontal", 4))
sketch7.addConstraint(Sketcher.Constraint("Vertical", 5))
sketch7.addConstraint(Sketcher.Constraint("Horizontal", 6))
sketch7.addConstraint(Sketcher.Constraint("Vertical", 7))
sketch7.addConstraint(Sketcher.Constraint("Horizontal", 8))
sketch7.addConstraint(Sketcher.Constraint("Vertical", 9))
sketch7.addConstraint(Sketcher.Constraint("Vertical", 10))
sketch7.addConstraint(Sketcher.Constraint("Horizontal", 11))
sketch7.addConstraint(Sketcher.Constraint("Vertical", 12))
sketch7.addConstraint(Sketcher.Constraint("Horizontal", 16))
sketch7.addConstraint(Sketcher.Constraint("Horizontal", 17))
sketch7.addConstraint(Sketcher.Constraint("Vertical", 18))
sketch7.addConstraint(Sketcher.Constraint("Vertical", 29))
sketch7.addConstraint(Sketcher.Constraint("Horizontal", 2, 2, 5, 2))
sketch7.addConstraint(Sketcher.Constraint("Vertical", 1, 2, 10, 2))
sketch7.addConstraint(Sketcher.Constraint("Vertical", 9, 2, 11, 2))
sketch7.addConstraint(Sketcher.Constraint("Vertical", 16, 2, 29, 2))
sketch7.addConstraint(Sketcher.Constraint("Equal", 4, 8))
sketch7.addConstraint(Sketcher.Constraint("Equal", 2, 3))
sketch7.addConstraint(Sketcher.Constraint("Equal", 17, 10))
sketch7.addConstraint(Sketcher.Constraint("DistanceX", 2, 2, 2, 1, 0.46098))
sketch7.addConstraint(Sketcher.Constraint("DistanceX", 6, 2, 6, 1, 0.329272))
sketch7.addConstraint(Sketcher.Constraint("DistanceY", 1, 1, 1, 2, 0.14488))
sketch7.addConstraint(Sketcher.Constraint("DistanceY", 18, 2, 18, 1, 0.502551))
sketch7.addConstraint(Sketcher.Constraint("DistanceY", 8, 2, 12, 2, 0.507901))
sketch7.addConstraint(Sketcher.Constraint("DistanceY", 7, 1, 7, 2, 0.540005))
pad5 = body.newObject("PartDesign::Pad", "Pad004")
pad5.Profile = sketch7
pad5.Length = 0.02

# Sketch on XY plane
sketch8 = body.newObject("Sketcher::SketchObject", "Sketch007")
sketch8.AttachmentSupport = (doc.getObject("XY_Plane"), [""])
sketch8.MapMode = "FlatFace"
sketch8.AttachmentOffset = App.Placement(Vector(0, 0, 0.1), App.Rotation())
add_polygon(sketch8, [(-0.6, -5.5), (-0.6, -2.3), (0.6, -2.3), (0.6, -5.5)])  # lines 0-3
add_polygon(sketch8, [(-0.6, 2.3), (-0.6, 5.5), (0.6, 5.5), (0.6, 2.3)])  # lines 4-7
sketch8.addConstraint(Sketcher.Constraint("Vertical", 0))
sketch8.addConstraint(Sketcher.Constraint("Horizontal", 1))
sketch8.addConstraint(Sketcher.Constraint("Vertical", 2))
sketch8.addConstraint(Sketcher.Constraint("Horizontal", 3))
sketch8.addConstraint(Sketcher.Constraint("Vertical", 4))
sketch8.addConstraint(Sketcher.Constraint("Horizontal", 5))
sketch8.addConstraint(Sketcher.Constraint("Vertical", 6))
sketch8.addConstraint(Sketcher.Constraint("Horizontal", 7))
sketch8.addConstraint(Sketcher.Constraint("Symmetric", 2, 2, 4, 2, -1, 1))
sketch8.addConstraint(Sketcher.Constraint("Symmetric", 0, 2, 6, 2, -1, 1))
sketch8.addConstraint(Sketcher.Constraint("Vertical", 3, 2, 4, 2))
sketch8.addConstraint(Sketcher.Constraint("DistanceX", 1, 1, 1, 2, 1.1))
sketch8.addConstraint(Sketcher.Constraint("DistanceY", 0, 1, 0, 2, 3.2))
sketch8.addConstraint(Sketcher.Constraint("DistanceY", 3, 2, 4, 2, 11.0))
pad6 = body.newObject("PartDesign::Pad", "Pad005")
pad6.Profile = sketch8
pad6.Length = 0.25
pad6.Reversed = True

doc.recompute()
